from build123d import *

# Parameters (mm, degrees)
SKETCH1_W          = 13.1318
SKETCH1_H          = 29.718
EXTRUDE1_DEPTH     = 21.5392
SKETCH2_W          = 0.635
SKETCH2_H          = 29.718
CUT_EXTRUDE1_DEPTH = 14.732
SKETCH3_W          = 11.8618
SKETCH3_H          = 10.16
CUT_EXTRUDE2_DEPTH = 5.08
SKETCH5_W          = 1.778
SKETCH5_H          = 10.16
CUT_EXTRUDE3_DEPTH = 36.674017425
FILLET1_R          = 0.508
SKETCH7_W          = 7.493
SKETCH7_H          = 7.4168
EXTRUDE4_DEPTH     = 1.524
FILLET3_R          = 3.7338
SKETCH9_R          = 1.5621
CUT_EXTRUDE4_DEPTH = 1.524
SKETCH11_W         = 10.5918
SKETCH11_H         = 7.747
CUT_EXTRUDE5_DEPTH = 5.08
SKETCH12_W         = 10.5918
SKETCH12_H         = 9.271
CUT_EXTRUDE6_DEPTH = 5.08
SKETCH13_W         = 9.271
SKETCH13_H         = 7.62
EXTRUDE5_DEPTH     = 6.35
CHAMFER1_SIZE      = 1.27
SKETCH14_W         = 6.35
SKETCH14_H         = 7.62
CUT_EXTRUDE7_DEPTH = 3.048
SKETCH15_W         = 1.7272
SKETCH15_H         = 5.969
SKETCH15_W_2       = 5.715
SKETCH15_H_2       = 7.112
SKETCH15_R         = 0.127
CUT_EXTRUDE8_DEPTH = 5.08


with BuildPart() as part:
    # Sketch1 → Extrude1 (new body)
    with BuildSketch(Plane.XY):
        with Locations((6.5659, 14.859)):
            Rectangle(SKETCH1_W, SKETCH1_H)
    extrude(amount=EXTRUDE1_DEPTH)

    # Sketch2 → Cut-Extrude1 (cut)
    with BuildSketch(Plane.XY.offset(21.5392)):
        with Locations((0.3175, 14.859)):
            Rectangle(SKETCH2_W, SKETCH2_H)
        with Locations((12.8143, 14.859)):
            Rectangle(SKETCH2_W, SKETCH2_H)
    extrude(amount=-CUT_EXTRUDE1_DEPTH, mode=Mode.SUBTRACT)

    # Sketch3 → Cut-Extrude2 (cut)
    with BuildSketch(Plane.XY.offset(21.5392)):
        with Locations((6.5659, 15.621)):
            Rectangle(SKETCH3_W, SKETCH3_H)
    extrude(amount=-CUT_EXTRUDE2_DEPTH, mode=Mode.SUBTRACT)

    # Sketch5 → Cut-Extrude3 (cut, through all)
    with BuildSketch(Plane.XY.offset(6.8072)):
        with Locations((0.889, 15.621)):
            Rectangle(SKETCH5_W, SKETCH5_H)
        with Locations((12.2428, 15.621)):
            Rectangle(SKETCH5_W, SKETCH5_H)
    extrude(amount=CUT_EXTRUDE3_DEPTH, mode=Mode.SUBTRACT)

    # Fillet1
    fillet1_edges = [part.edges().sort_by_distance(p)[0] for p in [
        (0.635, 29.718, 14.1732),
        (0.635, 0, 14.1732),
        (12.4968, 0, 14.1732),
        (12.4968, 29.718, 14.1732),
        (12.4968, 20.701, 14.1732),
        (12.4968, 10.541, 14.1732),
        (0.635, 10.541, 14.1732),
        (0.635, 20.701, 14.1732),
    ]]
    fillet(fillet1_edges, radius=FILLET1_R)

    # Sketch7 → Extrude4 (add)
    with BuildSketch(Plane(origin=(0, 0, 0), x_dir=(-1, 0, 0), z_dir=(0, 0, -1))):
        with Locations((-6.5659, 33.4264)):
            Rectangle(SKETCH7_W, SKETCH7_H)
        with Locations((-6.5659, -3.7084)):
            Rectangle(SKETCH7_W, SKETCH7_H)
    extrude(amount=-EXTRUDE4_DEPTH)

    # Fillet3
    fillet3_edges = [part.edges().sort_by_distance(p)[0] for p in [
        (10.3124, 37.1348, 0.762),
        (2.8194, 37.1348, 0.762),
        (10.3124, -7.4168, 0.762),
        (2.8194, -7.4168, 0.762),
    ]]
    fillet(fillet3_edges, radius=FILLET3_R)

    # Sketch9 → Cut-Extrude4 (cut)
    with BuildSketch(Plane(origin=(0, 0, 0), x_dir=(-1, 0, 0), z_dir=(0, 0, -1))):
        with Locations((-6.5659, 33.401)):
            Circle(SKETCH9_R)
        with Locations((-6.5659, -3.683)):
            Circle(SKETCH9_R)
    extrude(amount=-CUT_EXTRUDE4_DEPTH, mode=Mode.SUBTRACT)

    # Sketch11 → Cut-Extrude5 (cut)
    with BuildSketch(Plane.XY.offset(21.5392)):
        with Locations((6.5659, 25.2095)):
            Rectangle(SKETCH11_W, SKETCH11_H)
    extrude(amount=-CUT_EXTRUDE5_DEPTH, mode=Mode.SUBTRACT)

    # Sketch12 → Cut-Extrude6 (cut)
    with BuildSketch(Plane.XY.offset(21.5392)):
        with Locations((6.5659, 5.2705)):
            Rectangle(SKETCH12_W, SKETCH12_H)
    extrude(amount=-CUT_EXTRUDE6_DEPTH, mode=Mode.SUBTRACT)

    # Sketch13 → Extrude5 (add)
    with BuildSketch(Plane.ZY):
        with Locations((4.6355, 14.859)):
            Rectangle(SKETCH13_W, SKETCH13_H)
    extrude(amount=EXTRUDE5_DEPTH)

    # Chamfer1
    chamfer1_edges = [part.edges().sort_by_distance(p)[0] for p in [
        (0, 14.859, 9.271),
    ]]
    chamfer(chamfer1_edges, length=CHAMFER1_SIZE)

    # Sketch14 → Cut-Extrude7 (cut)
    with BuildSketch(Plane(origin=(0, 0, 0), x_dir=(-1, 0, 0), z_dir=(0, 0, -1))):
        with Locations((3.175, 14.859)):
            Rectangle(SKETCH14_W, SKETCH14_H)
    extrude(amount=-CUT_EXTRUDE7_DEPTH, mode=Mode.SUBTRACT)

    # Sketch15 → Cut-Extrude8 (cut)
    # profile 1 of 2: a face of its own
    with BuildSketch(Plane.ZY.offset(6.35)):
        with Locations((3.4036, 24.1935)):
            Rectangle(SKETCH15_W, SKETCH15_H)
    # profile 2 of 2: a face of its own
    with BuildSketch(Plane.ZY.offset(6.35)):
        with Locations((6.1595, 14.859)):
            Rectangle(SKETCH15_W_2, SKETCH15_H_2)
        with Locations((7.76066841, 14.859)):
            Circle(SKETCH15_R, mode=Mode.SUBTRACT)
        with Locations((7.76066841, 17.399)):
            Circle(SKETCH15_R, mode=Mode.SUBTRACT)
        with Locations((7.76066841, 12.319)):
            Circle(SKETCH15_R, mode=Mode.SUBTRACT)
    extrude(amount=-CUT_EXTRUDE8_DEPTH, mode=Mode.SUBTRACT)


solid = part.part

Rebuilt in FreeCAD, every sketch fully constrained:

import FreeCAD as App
import Part
import Sketcher

V = App.Vector
Q = App.Units.Quantity


def edges_at(feature, points):
    """Names of the edges that pass closest to the given points."""
    edges = feature.Shape.Edges
    near = lambda p: min(range(len(edges)), key=lambda i: edges[i].distToShape(Part.Vertex(*p))[0])
    return sorted({f"Edge{near(p) + 1}" for p in points})

doc = App.newDocument("Part")
body = doc.addObject("PartDesign::Body", "Body")

# Sketch on XY plane
sketch1 = body.newObject("Sketcher::SketchObject", "Sketch")
sketch1.AttachmentSupport = (doc.getObject("XY_Plane"), [""])
sketch1.MapMode = "FlatFace"
sketch1.addGeometry([
    Part.LineSegment(V(0, 30, 0), V(0, 0, 0)),
    Part.LineSegment(V(0, 0, 0), V(13, 0, 0)),
    Part.LineSegment(V(13, 0, 0), V(13, 30, 0)),
    Part.LineSegment(V(13, 30, 0), V(0, 30, 0)),
], False)
sketch1.addConstraint([
    Sketcher.Constraint("Coincident", 0, 2, 1, 1),
    Sketcher.Constraint("Coincident", 1, 2, 2, 1),
    Sketcher.Constraint("Coincident", 2, 2, 3, 1),
    Sketcher.Constraint("Coincident", 3, 2, 0, 1),
    Sketcher.Constraint("Vertical", 0),
    Sketcher.Constraint("Horizontal", 1),
    Sketcher.Constraint("Vertical", 2),
    Sketcher.Constraint("Horizontal", 3),
    Sketcher.Constraint("Coincident", 0, 2, -1, 1),
    Sketcher.Constraint("DistanceY", 0, 2, 0, 1, Q("1.17 in")),
    Sketcher.Constraint("DistanceX", 1, 1, 1, 2, Q("0.517 in")),
])
pad1 = body.newObject("PartDesign::Pad", "Pad")
pad1.Profile = sketch1
pad1.Length = Q("0.848 in")

# Sketch on XY plane
sketch2 = body.newObject("Sketcher::SketchObject", "Sketch001")
sketch2.AttachmentSupport = (doc.getObject("XY_Plane"), [""])
sketch2.MapMode = "FlatFace"
sketch2.AttachmentOffset = App.Placement(V(0, 0, 0.848 * 25.4), App.Rotation())
sketch2.addGeometry([
    Part.LineSegment(V(0, 29.7, 0), V(0, 0, 0)),  # 0
    Part.LineSegment(V(0, 0, 0), V(0.6, 0, 0)),  # 1
    Part.LineSegment(V(0.6, 0, 0), V(0.6, 29.7, 0)),  # 2
    Part.LineSegment(V(0.6, 29.7, 0), V(0, 29.7, 0)),  # 3
    Part.LineSegment(V(12.5, 29.7, 0), V(12.5, 0, 0)),  # 4
    Part.LineSegment(V(12.5, 0, 0), V(13.1, 0, 0)),  # 5
    Part.LineSegment(V(13.1, 0, 0), V(13.1, 29.7, 0)),  # 6
    Part.LineSegment(V(13.1, 29.7, 0), V(12.5, 29.7, 0)),  # 7
], False)
sketch2.addConstraint([
    Sketcher.Constraint("Coincident", 0, 2, 1, 1),
    Sketcher.Constraint("Coincident", 1, 2, 2, 1),
    Sketcher.Constraint("Coincident", 2, 2, 3, 1),
    Sketcher.Constraint("Coincident", 3, 2, 0, 1),
    Sketcher.Constraint("Coincident", 4, 2, 5, 1),
    Sketcher.Constraint("Coincident", 5, 2, 6, 1),
    Sketcher.Constraint("Coincident", 6, 2, 7, 1),
    Sketcher.Constraint("Coincident", 7, 2, 4, 1),
    Sketcher.Constraint("Vertical", 0),
    Sketcher.Constraint("Horizontal", 1),
    Sketcher.Constraint("Vertical", 2),
    Sketcher.Constraint("Horizontal", 3),
    Sketcher.Constraint("Vertical", 4),
    Sketcher.Constraint("Horizontal", 5),
    Sketcher.Constraint("Vertical", 6),
    Sketcher.Constraint("Horizontal", 7),
    Sketcher.Constraint("Coincident", 0, 2, -1, 1),
    Sketcher.Constraint("PointOnObject", 4, 2, -1),
    Sketcher.Constraint("Horizontal", 3, 2, 6, 2),
    Sketcher.Constraint("Equal", 3, 5),
    Sketcher.Constraint("DistanceY", 0, 2, 0, 1, Q("1.17 in")),
    Sketcher.Constraint("DistanceX", 1, 1, 1, 2, Q("0.025 in")),
    Sketcher.Constraint("DistanceX", -1, 1, 4, 2, Q("0.492 in")),
])
pocket1 = body.newObject("PartDesign::Pocket", "Pocket")
pocket1.Profile = sketch2
pocket1.Length = Q("0.58 in")

# Sketch on XY plane
sketch3 = body.newObject("Sketcher::SketchObject", "Sketch002")
sketch3.AttachmentSupport = (doc.getObject("XY_Plane"), [""])
sketch3.MapMode = "FlatFace"
sketch3.AttachmentOffset = App.Placement(V(0, 0, 0.848 * 25.4), App.Rotation())
sketch3.addGeometry([
    Part.LineSegment(V(1, 21, 0), V(1, 11, 0)),
    Part.LineSegment(V(1, 11, 0), V(12, 11, 0)),
    Part.LineSegment(V(12, 11, 0), V(12, 21, 0)),
    Part.LineSegment(V(12, 21, 0), V(1, 21, 0)),
], False)
sketch3.addConstraint([
    Sketcher.Constraint("Coincident", 0, 2, 1, 1),
    Sketcher.Constraint("Coincident", 1, 2, 2, 1),
    Sketcher.Constraint("Coincident", 2, 2, 3, 1),
    Sketcher.Constraint("Coincident", 3, 2, 0, 1),
    Sketcher.Constraint("Vertical", 0),
    Sketcher.Constraint("Horizontal", 1),
    Sketcher.Constraint("Vertical", 2),
    Sketcher.Constraint("Horizontal", 3),
    Sketcher.Constraint("DistanceY", 0, 2, 0, 1, Q("0.4 in")),
    Sketcher.Constraint("DistanceX", 1, 1, 1, 2, Q("0.467 in")),
    Sketcher.Constraint("DistanceX", -1, 1, 0, 2, Q("0.025 in")),
    Sketcher.Constraint("DistanceY", -1, 1, 0, 2, Q("0.415 in")),
])
pocket2 = body.newObject("PartDesign::Pocket", "Pocket001")
pocket2.Profile = sketch3
pocket2.Length = Q("0.2 in")

# Sketch on XY plane
sketch4 = body.newObject("Sketcher::SketchObject", "Sketch003")
sketch4.AttachmentSupport = (doc.getObject("XY_Plane"), [""])
sketch4.MapMode = "FlatFace"
sketch4.AttachmentOffset = App.Placement(V(0, 0, 0.268 * 25.4), App.Rotation())
sketch4.addGeometry([
    Part.LineSegment(V(0, 20.7, 0), V(0, 10.5, 0)),  # 0
    Part.LineSegment(V(0, 10.5, 0), V(1.8, 10.5, 0)),  # 1
    Part.LineSegment(V(1.8, 10.5, 0), V(1.8, 20.7, 0)),  # 2
    Part.LineSegment(V(1.8, 20.7, 0), V(0, 20.7, 0)),  # 3
    Part.LineSegment(V(11.4, 20.7, 0), V(11.4, 10.5, 0)),  # 4
    Part.LineSegment(V(11.4, 10.5, 0), V(13.1, 10.5, 0)),  # 5
    Part.LineSegment(V(13.1, 10.5, 0), V(13.1, 20.7, 0)),  # 6
    Part.LineSegment(V(13.1, 20.7, 0), V(11.4, 20.7, 0)),  # 7
], False)
sketch4.addConstraint([
    Sketcher.Constraint("Coincident", 0, 2, 1, 1),
    Sketcher.Constraint("Coincident", 1, 2, 2, 1),
    Sketcher.Constraint("Coincident", 2, 2, 3, 1),
    Sketcher.Constraint("Coincident", 3, 2, 0, 1),
    Sketcher.Constraint("Coincident", 4, 2, 5, 1),
    Sketcher.Constraint("Coincident", 5, 2, 6, 1),
    Sketcher.Constraint("Coincident", 6, 2, 7, 1),
    Sketcher.Constraint("Coincident", 7, 2, 4, 1),
    Sketcher.Constraint("Vertical", 0),
    Sketcher.Constraint("Horizontal", 1),
    Sketcher.Constraint("Vertical", 2),
    Sketcher.Constraint("Horizontal", 3),
    Sketcher.Constraint("Vertical", 4),
    Sketcher.Constraint("Horizontal", 5),
    Sketcher.Constraint("Vertical", 6),
    Sketcher.Constraint("Horizontal", 7),
    Sketcher.Constraint("PointOnObject", 0, 2, -2),
    Sketcher.Constraint("Horizontal", 1, 2, 4, 2),
    Sketcher.Constraint("Horizontal", 3, 2, 6, 2),
    Sketcher.Constraint("Equal", 3, 5),
    Sketcher.Constraint("DistanceY", 0, 2, 0, 1, Q("0.4 in")),
    Sketcher.Constraint("DistanceX", 1, 1, 1, 2, Q("0.07 in")),
    Sketcher.Constraint("DistanceY", -1, 1, 0, 2, Q("0.415 in")),
    Sketcher.Constraint("DistanceX", -1, 1, 4, 2, Q("0.447 in")),
])
pocket3 = body.newObject("PartDesign::Pocket", "Pocket002")
pocket3.Profile = sketch4
pocket3.Type = "ThroughAll"
pocket3.Reversed = True
doc.recompute()

fillet = body.newObject("PartDesign::Fillet", "Fillet")
fillet.Base = (pocket3, edges_at(pocket3, [
    (0.635, 29.718, 14.173),
    (0.635, 0, 14.173),
    (12.497, 0, 14.173),
    (12.497, 29.718, 14.173),
    (12.497, 20.701, 14.173),
    (12.497, 10.541, 14.173),
    (0.635, 10.541, 14.173),
    (0.635, 20.701, 14.173),
]))
fillet.Radius = Q("0.02 in")

# Sketch on XY plane
sketch5 = body.newObject("Sketcher::SketchObject", "Sketch004")
sketch5.AttachmentSupport = (doc.getObject("XY_Plane"), [""])
sketch5.MapMode = "FlatFace"
sketch5.addGeometry([
    Part.LineSegment(V(10, 37, 0), V(10, 30, 0)),  # 0
    Part.LineSegment(V(10, 30, 0), V(3, 30, 0)),  # 1
    Part.LineSegment(V(3, 30, 0), V(3, 37, 0)),  # 2
    Part.LineSegment(V(3, 37, 0), V(10, 37, 0)),  # 3
    Part.LineSegment(V(10, 0, 0), V(10, -7, 0)),  # 4
    Part.LineSegment(V(10, -7, 0), V(3, -7, 0)),  # 5
    Part.LineSegment(V(3, -7, 0), V(3, 0, 0)),  # 6
    Part.LineSegment(V(3, 0, 0), V(10, 0, 0)),  # 7
], False)
sketch5.addConstraint([
    Sketcher.Constraint("Coincident", 0, 2, 1, 1),
    Sketcher.Constraint("Coincident", 1, 2, 2, 1),
    Sketcher.Constraint("Coincident", 2, 2, 3, 1),
    Sketcher.Constraint("Coincident", 3, 2, 0, 1),
    Sketcher.Constraint("Coincident", 4, 2, 5, 1),
    Sketcher.Constraint("Coincident", 5, 2, 6, 1),
    Sketcher.Constraint("Coincident", 6, 2, 7, 1),
    Sketcher.Constraint("Coincident", 7, 2, 4, 1),
    Sketcher.Constraint("Vertical", 0),
    Sketcher.Constraint("Horizontal", 1),
    Sketcher.Constraint("Vertical", 2),
    Sketcher.Constraint("Horizontal", 3),
    Sketcher.Constraint("Vertical", 4),
    Sketcher.Constraint("Horizontal", 5),
    Sketcher.Constraint("Vertical", 6),
    Sketcher.Constraint("Horizontal", 7),
    Sketcher.Constraint("PointOnObject", 6, 2, -1),
    Sketcher.Constraint("Vertical", 3, 2, 4, 2),
    Sketcher.Constraint("Vertical", 2, 2, 5, 2),
    Sketcher.Constraint("Equal", 2, 4),
    Sketcher.Constraint("DistanceX", 1, 2, 1, 1, Q("0.295 in")),
    Sketcher.Constraint("DistanceY", 0, 2, 0, 1, Q("0.292 in")),
    Sketcher.Constraint("DistanceY", -1, 1, 0, 2, Q("1.17 in")),
    Sketcher.Constraint("DistanceX", -1, 1, 0, 2, Q("0.406 in")),
])
pad2 = body.newObject("PartDesign::Pad", "Pad001")
pad2.Profile = sketch5
pad2.Length = Q("0.06 in")
doc.recompute()

fillet2 = body.newObject("PartDesign::Fillet", "Fillet001")
fillet2.Base = (pad2, edges_at(pad2, [
    (10.312, 37.135, 0.762),
    (2.819, 37.135, 0.762),
    (10.312, -7.417, 0.762),
    (2.819, -7.417, 0.762),
]))
fillet2.Radius = Q("0.147 in")

# Sketch on XY plane
sketch6 = body.newObject("Sketcher::SketchObject", "Sketch005")
sketch6.AttachmentSupport = (doc.getObject("XY_Plane"), [""])
sketch6.MapMode = "FlatFace"
sketch6.addGeometry([
    Part.Circle(V(6.6, 33.4, 0), V(0, 0, 1), 1.6),
    Part.Circle(V(6.6, -3.7, 0), V(0, 0, 1), 1.6),
], False)
sketch6.addConstraint([
    Sketcher.Constraint("Equal", 0, 1),
    Sketcher.Constraint("Vertical", 0, 3, 1, 3),
    Sketcher.Constraint("Diameter", 0, Q("0.123 in")),
    Sketcher.Constraint("DistanceY", 1, 3, 0, 3, Q("1.46 in")),
    Sketcher.Constraint("DistanceY", -1, 1, 0, 3, Q("1.315 in")),
    Sketcher.Constraint("DistanceX", -1, 1, 0, 3, Q("0.2585 in")),
])
pocket4 = body.newObject("PartDesign::Pocket", "Pocket003")
pocket4.Profile = sketch6
pocket4.Length = Q("0.06 in")
pocket4.Reversed = True

# Sketch on XY plane
sketch7 = body.newObject("Sketcher::SketchObject", "Sketch006")
sketch7.AttachmentSupport = (doc.getObject("XY_Plane"), [""])
sketch7.MapMode = "FlatFace"
sketch7.AttachmentOffset = App.Placement(V(0, 0, 0.848 * 25.4), App.Rotation())
sketch7.addGeometry([
    Part.LineSegment(V(1, 29, 0), V(1, 21, 0)),
    Part.LineSegment(V(1, 21, 0), V(12, 21, 0)),
    Part.LineSegment(V(12, 21, 0), V(12, 29, 0)),
    Part.LineSegment(V(12, 29, 0), V(1, 29, 0)),
], False)
sketch7.addConstraint([
    Sketcher.Constraint("Coincident", 0, 2, 1, 1),
    Sketcher.Constraint("Coincident", 1, 2, 2, 1),
    Sketcher.Constraint("Coincident", 2, 2, 3, 1),
    Sketcher.Constraint("Coincident", 3, 2, 0, 1),
    Sketcher.Constraint("Vertical", 0),
    Sketcher.Constraint("Horizontal", 1),
    Sketcher.Constraint("Vertical", 2),
    Sketcher.Constraint("Horizontal", 3),
    Sketcher.Constraint("DistanceX", 1, 1, 1, 2, Q("0.417 in")),
    Sketcher.Constraint("DistanceY", 0, 2, 0, 1, Q("0.305 in")),
    Sketcher.Constraint("DistanceX", -1, 1, 0, 2, Q("0.05 in")),
    Sketcher.Constraint("DistanceY", -1, 1, 0, 2, Q("0.84 in")),
])
pocket5 = body.newObject("PartDesign::Pocket", "Pocket004")
pocket5.Profile = sketch7
pocket5.Length = Q("0.2 in")

# Sketch on XY plane
sketch8 = body.newObject("Sketcher::SketchObject", "Sketch007")
sketch8.AttachmentSupport = (doc.getObject("XY_Plane"), [""])
sketch8.MapMode = "FlatFace"
sketch8.AttachmentOffset = App.Placement(V(0, 0, 0.848 * 25.4), App.Rotation())
sketch8.addGeometry([
    Part.LineSegment(V(1, 10, 0), V(1, 1, 0)),
    Part.LineSegment(V(1, 1, 0), V(12, 1, 0)),
    Part.LineSegment(V(12, 1, 0), V(12, 10, 0)),
    Part.LineSegment(V(12, 10, 0), V(1, 10, 0)),
], False)
sketch8.addConstraint([
    Sketcher.Constraint("Coincident", 0, 2, 1, 1),
    Sketcher.Constraint("Coincident", 1, 2, 2, 1),
    Sketcher.Constraint("Coincident", 2, 2, 3, 1),
    Sketcher.Constraint("Coincident", 3, 2, 0, 1),
    Sketcher.Constraint("Vertical", 0),
    Sketcher.Constraint("Horizontal", 1),
    Sketcher.Constraint("Vertical", 2),
    Sketcher.Constraint("Horizontal", 3),
    Sketcher.Constraint("DistanceX", 1, 1, 1, 2, Q("0.417 in")),
    Sketcher.Constraint("DistanceY", 0, 2, 0, 1, Q("0.365 in")),
    Sketcher.Constraint("DistanceX", -1, 1, 0, 2, Q("0.05 in")),
    Sketcher.Constraint("DistanceY", -1, 1, 2, 2, Q("0.39 in")),
])
pocket6 = body.newObject("PartDesign::Pocket", "Pocket005")
pocket6.Profile = sketch8
pocket6.Length = Q("0.2 in")

# Sketch on YZ plane
sketch9 = body.newObject("Sketcher::SketchObject", "Sketch008")
sketch9.AttachmentSupport = (doc.getObject("YZ_Plane"), [""])
sketch9.MapMode = "FlatFace"
sketch9.addGeometry([
    Part.LineSegment(V(19, 0, 0), V(11, 0, 0)),
    Part.LineSegment(V(11, 0, 0), V(11, 9, 0)),
    Part.LineSegment(V(11, 9, 0), V(19, 9, 0)),
    Part.LineSegment(V(19, 9, 0), V(19, 0, 0)),
], False)
sketch9.addConstraint([
    Sketcher.Constraint("Coincident", 0, 2, 1, 1),
    Sketcher.Constraint("Coincident", 1, 2, 2, 1),
    Sketcher.Constraint("Coincident", 2, 2, 3, 1),
    Sketcher.Constraint("Coincident", 3, 2, 0, 1),
    Sketcher.Constraint("Horizontal", 0),
    Sketcher.Constraint("Vertical", 1),
    Sketcher.Constraint("Horizontal", 2),
    Sketcher.Constraint("Vertical", 3),
    Sketcher.Constraint("PointOnObject", 0, 2, -1),
    Sketcher.Constraint("DistanceX", 0, 2, 0, 1, Q("0.3 in")),
    Sketcher.Constraint("DistanceY", 1, 1, 1, 2, Q("0.365 in")),
    Sketcher.Constraint("DistanceX", -1, 1, 0, 2, Q("0.435 in")),
])
pad3 = body.newObject("PartDesign::Pad", "Pad002")
pad3.Profile = sketch9
pad3.Length = Q("0.25 in")
pad3.Reversed = True
doc.recompute()

chamfer = body.newObject("PartDesign::Chamfer", "Chamfer")
chamfer.Base = (pad3, edges_at(pad3, [(0, 14.859, 9.271)]))
chamfer.Size = Q("0.05 in")

# Sketch on XY plane
sketch10 = body.newObject("Sketcher::SketchObject", "Sketch009")
sketch10.AttachmentSupport = (doc.getObject("XY_Plane"), [""])
sketch10.MapMode = "FlatFace"
sketch10.addGeometry([
    Part.LineSegment(V(0, 19, 0), V(0, 11, 0)),
    Part.LineSegment(V(0, 11, 0), V(-6, 11, 0)),
    Part.LineSegment(V(-6, 11, 0), V(-6, 19, 0)),
    Part.LineSegment(V(-6, 19, 0), V(0, 19, 0)),
], False)
sketch10.addConstraint([
    Sketcher.Constraint("Coincident", 0, 2, 1, 1),
    Sketcher.Constraint("Coincident", 1, 2, 2, 1),
    Sketcher.Constraint("Coincident", 2, 2, 3, 1),
    Sketcher.Constraint("Coincident", 3, 2, 0, 1),
    Sketcher.Constraint("Vertical", 0),
    Sketcher.Constraint("Horizontal", 1),
    Sketcher.Constraint("Vertical", 2),
    Sketcher.Constraint("Horizontal", 3),
    Sketcher.Constraint("PointOnObject", 0, 2, -2),
    Sketcher.Constraint("DistanceY", 0, 2, 0, 1, Q("0.3 in")),
    Sketcher.Constraint("DistanceX", 1, 2, 1, 1, Q("0.25 in")),
    Sketcher.Constraint("DistanceY", -1, 1, 0, 2, Q("0.435 in")),
])
pocket7 = body.newObject("PartDesign::Pocket", "Pocket006")
pocket7.Profile = sketch10
pocket7.Length = Q("0.12 in")
pocket7.Reversed = True

# Sketch on YZ plane
sketch11 = body.newObject("Sketcher::SketchObject", "Sketch010")
sketch11.AttachmentSupport = (doc.getObject("YZ_Plane"), [""])
sketch11.MapMode = "FlatFace"
sketch11.AttachmentOffset = App.Placement(V(0, 0, -0.25 * 25.4), App.Rotation())
sketch11.addGeometry([
    Part.LineSegment(V(27.18, 2.54, 0), V(21.21, 2.54, 0)),  # 0
    Part.LineSegment(V(21.21, 2.54, 0), V(21.21, 4.27, 0)),  # 1
    Part.LineSegment(V(21.21, 4.27, 0), V(27.18, 4.27, 0)),  # 2
    Part.LineSegment(V(27.18, 4.27, 0), V(27.18, 2.54, 0)),  # 3
    Part.LineSegment(V(18.41, 3.3, 0), V(11.3, 3.3, 0)),  # 4
    Part.LineSegment(V(11.3, 3.3, 0), V(11.3, 9.02, 0)),  # 5
    Part.LineSegment(V(11.3, 9.02, 0), V(18.41, 9.02, 0)),  # 6
    Part.LineSegment(V(18.41, 9.02, 0), V(18.41, 3.3, 0)),  # 7
    Part.Circle(V(12.32, 7.76, 0), V(0, 0, 1), 0.13),  # 8
    Part.Circle(V(14.86, 7.76, 0), V(0, 0, 1), 0.13),  # 9
    Part.Circle(V(17.4, 7.76, 0), V(0, 0, 1), 0.13),  # 10
], False)
sketch11.addConstraint([
    Sketcher.Constraint("Coincident", 0, 2, 1, 1),
    Sketcher.Constraint("Coincident", 1, 2, 2, 1),
    Sketcher.Constraint("Coincident", 2, 2, 3, 1),
    Sketcher.Constraint("Coincident", 3, 2, 0, 1),
    Sketcher.Constraint("Coincident", 4, 2, 5, 1),
    Sketcher.Constraint("Coincident", 5, 2, 6, 1),
    Sketcher.Constraint("Coincident", 6, 2, 7, 1),
    Sketcher.Constraint("Coincident", 7, 2, 4, 1),
    Sketcher.Constraint("Horizontal", 0),
    Sketcher.Constraint("Vertical", 1),
    Sketcher.Constraint("Horizontal", 2),
    Sketcher.Constraint("Vertical", 3),
    Sketcher.Constraint("Horizontal", 4),
    Sketcher.Constraint("Vertical", 5),
    Sketcher.Constraint("Horizontal", 6),
    Sketcher.Constraint("Vertical", 7),
    Sketcher.Constraint("Equal", 8, 9),
    Sketcher.Constraint("Equal", 9, 10),
    Sketcher.Constraint("Horizontal", 8, 3, 9, 3),
    Sketcher.Constraint("Horizontal", 9, 3, 10, 3),
    Sketcher.Constraint("Diameter", 8, Q("0.01 in")),
    Sketcher.Constraint("DistanceX", 4, 2, 4, 1, Q("0.28 in")),
    Sketcher.Constraint("DistanceY", -1, 1, 0, 2, Q("0.1 in")),
    Sketcher.Constraint("DistanceX", 8, 3, 9, 3, Q("0.1 in")),
    Sketcher.Constraint("DistanceX", 9, 3, 10, 3, Q("0.1 in")),
    Sketcher.Constraint("DistanceX", 0, 2, 0, 1, Q("0.235 in")),
    Sketcher.Constraint("DistanceY", 1, 1, 1, 2, Q("0.068 in")),
    Sketcher.Constraint("DistanceY", 5, 1, 5, 2, Q("0.225 in")),
    Sketcher.Constraint("DistanceX", -1, 1, 2, 2, Q("1.07 in")),
    Sketcher.Constraint("DistanceY", -1, 1, 4, 2, Q("0.13 in")),
    Sketcher.Constraint("DistanceX", 10, 3, 0, 2, Q("0.15 in")),
    Sketcher.Constraint("DistanceX", 4, 2, 8, 3, Q("0.04 in")),
    Sketcher.Constraint("DistanceY", -1, 1, 8, 3, Q("7.760668 mm")),
])
pocket8 = body.newObject("PartDesign::Pocket", "Pocket007")
pocket8.Profile = sketch11
pocket8.Length = Q("0.2 in")
pocket8.Reversed = True

doc.recompute()
